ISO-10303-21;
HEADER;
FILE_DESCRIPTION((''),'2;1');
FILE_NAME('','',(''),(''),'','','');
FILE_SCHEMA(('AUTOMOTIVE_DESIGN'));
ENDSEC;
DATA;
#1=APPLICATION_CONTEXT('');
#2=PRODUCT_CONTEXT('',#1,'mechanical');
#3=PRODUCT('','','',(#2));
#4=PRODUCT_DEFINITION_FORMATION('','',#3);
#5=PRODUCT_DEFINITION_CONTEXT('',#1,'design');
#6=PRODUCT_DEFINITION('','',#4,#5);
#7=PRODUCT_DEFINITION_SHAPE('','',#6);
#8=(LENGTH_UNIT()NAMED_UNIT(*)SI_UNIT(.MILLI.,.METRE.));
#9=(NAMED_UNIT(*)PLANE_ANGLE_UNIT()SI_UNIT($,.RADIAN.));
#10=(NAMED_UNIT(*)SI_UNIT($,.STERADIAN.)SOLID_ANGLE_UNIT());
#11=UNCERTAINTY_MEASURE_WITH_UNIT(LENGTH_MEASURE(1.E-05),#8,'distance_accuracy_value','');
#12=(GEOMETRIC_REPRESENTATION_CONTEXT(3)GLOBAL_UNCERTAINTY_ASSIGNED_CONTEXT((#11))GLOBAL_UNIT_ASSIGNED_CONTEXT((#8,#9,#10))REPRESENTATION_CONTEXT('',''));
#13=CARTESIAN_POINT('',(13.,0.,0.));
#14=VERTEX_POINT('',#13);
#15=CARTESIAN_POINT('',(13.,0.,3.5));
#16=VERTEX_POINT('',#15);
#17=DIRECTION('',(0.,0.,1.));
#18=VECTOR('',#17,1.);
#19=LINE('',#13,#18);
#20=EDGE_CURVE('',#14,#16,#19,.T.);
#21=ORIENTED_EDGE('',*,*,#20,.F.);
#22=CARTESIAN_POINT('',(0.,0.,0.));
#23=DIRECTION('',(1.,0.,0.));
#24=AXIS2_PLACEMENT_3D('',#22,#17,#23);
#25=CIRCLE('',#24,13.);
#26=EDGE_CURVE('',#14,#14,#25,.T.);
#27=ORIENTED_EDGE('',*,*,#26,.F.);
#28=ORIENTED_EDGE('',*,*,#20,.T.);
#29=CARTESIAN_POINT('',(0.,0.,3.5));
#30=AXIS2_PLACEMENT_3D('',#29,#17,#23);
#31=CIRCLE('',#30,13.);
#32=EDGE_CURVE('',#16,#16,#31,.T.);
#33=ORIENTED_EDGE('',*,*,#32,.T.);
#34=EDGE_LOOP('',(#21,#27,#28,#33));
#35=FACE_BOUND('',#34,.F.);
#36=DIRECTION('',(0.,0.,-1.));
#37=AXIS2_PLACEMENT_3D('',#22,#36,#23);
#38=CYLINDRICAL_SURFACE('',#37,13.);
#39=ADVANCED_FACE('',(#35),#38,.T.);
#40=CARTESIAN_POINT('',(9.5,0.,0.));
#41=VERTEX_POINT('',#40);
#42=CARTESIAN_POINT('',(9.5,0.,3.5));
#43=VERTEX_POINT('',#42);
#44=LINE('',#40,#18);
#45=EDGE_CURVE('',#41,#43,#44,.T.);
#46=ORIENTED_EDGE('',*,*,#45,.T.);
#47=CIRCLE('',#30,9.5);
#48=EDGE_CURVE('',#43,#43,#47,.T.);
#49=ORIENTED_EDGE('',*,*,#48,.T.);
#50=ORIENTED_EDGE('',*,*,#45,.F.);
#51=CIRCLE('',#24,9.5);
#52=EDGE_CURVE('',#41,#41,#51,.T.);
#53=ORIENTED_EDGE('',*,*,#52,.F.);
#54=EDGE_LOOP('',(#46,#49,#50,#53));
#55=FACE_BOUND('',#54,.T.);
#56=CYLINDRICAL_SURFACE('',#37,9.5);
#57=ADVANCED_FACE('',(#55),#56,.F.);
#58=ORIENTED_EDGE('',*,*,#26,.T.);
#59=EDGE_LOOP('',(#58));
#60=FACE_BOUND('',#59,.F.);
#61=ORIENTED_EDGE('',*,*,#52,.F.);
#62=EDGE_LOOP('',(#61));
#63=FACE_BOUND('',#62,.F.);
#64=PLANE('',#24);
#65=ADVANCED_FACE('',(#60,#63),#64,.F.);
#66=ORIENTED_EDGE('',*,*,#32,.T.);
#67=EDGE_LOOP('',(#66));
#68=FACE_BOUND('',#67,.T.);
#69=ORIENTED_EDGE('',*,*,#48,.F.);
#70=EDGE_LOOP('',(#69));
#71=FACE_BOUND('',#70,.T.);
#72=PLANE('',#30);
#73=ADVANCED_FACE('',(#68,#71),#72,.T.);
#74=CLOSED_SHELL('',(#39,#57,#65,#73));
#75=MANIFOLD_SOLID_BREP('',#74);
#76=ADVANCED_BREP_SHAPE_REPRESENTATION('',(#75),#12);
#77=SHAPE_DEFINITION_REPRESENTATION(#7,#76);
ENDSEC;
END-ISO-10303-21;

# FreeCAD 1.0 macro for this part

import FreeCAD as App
import Part
import Sketcher
Q = App.Units.Quantity

doc = App.newDocument("Part")
body = doc.addObject("PartDesign::Body", "Body")

# Sketch on XY plane
sketch1 = body.newObject("Sketcher::SketchObject", "Sketch")
sketch1.AttachmentSupport = (doc.getObject("XY_Plane"), [""])
sketch1.MapMode = "FlatFace"
sketch1.addGeometry([
    Part.Circle(App.Vector(0, 0, 0), App.Vector(0, 0, 1), 13),
    Part.Circle(App.Vector(0, 0, 0), App.Vector(0, 0, 1), 10),
], False)
sketch1.addConstraint([
    Sketcher.Constraint("Coincident", 0, 3, -1, 1),
    Sketcher.Constraint("Coincident", 1, 3, -1, 1),
    Sketcher.Constraint("Diameter", 0, Q("26 mm")),
    Sketcher.Constraint("Diameter", 1, Q("19 mm")),
])
pad1 = body.newObject("PartDesign::Pad", "Pad")
pad1.Profile = sketch1
pad1.Length = 3.5

doc.recompute()
